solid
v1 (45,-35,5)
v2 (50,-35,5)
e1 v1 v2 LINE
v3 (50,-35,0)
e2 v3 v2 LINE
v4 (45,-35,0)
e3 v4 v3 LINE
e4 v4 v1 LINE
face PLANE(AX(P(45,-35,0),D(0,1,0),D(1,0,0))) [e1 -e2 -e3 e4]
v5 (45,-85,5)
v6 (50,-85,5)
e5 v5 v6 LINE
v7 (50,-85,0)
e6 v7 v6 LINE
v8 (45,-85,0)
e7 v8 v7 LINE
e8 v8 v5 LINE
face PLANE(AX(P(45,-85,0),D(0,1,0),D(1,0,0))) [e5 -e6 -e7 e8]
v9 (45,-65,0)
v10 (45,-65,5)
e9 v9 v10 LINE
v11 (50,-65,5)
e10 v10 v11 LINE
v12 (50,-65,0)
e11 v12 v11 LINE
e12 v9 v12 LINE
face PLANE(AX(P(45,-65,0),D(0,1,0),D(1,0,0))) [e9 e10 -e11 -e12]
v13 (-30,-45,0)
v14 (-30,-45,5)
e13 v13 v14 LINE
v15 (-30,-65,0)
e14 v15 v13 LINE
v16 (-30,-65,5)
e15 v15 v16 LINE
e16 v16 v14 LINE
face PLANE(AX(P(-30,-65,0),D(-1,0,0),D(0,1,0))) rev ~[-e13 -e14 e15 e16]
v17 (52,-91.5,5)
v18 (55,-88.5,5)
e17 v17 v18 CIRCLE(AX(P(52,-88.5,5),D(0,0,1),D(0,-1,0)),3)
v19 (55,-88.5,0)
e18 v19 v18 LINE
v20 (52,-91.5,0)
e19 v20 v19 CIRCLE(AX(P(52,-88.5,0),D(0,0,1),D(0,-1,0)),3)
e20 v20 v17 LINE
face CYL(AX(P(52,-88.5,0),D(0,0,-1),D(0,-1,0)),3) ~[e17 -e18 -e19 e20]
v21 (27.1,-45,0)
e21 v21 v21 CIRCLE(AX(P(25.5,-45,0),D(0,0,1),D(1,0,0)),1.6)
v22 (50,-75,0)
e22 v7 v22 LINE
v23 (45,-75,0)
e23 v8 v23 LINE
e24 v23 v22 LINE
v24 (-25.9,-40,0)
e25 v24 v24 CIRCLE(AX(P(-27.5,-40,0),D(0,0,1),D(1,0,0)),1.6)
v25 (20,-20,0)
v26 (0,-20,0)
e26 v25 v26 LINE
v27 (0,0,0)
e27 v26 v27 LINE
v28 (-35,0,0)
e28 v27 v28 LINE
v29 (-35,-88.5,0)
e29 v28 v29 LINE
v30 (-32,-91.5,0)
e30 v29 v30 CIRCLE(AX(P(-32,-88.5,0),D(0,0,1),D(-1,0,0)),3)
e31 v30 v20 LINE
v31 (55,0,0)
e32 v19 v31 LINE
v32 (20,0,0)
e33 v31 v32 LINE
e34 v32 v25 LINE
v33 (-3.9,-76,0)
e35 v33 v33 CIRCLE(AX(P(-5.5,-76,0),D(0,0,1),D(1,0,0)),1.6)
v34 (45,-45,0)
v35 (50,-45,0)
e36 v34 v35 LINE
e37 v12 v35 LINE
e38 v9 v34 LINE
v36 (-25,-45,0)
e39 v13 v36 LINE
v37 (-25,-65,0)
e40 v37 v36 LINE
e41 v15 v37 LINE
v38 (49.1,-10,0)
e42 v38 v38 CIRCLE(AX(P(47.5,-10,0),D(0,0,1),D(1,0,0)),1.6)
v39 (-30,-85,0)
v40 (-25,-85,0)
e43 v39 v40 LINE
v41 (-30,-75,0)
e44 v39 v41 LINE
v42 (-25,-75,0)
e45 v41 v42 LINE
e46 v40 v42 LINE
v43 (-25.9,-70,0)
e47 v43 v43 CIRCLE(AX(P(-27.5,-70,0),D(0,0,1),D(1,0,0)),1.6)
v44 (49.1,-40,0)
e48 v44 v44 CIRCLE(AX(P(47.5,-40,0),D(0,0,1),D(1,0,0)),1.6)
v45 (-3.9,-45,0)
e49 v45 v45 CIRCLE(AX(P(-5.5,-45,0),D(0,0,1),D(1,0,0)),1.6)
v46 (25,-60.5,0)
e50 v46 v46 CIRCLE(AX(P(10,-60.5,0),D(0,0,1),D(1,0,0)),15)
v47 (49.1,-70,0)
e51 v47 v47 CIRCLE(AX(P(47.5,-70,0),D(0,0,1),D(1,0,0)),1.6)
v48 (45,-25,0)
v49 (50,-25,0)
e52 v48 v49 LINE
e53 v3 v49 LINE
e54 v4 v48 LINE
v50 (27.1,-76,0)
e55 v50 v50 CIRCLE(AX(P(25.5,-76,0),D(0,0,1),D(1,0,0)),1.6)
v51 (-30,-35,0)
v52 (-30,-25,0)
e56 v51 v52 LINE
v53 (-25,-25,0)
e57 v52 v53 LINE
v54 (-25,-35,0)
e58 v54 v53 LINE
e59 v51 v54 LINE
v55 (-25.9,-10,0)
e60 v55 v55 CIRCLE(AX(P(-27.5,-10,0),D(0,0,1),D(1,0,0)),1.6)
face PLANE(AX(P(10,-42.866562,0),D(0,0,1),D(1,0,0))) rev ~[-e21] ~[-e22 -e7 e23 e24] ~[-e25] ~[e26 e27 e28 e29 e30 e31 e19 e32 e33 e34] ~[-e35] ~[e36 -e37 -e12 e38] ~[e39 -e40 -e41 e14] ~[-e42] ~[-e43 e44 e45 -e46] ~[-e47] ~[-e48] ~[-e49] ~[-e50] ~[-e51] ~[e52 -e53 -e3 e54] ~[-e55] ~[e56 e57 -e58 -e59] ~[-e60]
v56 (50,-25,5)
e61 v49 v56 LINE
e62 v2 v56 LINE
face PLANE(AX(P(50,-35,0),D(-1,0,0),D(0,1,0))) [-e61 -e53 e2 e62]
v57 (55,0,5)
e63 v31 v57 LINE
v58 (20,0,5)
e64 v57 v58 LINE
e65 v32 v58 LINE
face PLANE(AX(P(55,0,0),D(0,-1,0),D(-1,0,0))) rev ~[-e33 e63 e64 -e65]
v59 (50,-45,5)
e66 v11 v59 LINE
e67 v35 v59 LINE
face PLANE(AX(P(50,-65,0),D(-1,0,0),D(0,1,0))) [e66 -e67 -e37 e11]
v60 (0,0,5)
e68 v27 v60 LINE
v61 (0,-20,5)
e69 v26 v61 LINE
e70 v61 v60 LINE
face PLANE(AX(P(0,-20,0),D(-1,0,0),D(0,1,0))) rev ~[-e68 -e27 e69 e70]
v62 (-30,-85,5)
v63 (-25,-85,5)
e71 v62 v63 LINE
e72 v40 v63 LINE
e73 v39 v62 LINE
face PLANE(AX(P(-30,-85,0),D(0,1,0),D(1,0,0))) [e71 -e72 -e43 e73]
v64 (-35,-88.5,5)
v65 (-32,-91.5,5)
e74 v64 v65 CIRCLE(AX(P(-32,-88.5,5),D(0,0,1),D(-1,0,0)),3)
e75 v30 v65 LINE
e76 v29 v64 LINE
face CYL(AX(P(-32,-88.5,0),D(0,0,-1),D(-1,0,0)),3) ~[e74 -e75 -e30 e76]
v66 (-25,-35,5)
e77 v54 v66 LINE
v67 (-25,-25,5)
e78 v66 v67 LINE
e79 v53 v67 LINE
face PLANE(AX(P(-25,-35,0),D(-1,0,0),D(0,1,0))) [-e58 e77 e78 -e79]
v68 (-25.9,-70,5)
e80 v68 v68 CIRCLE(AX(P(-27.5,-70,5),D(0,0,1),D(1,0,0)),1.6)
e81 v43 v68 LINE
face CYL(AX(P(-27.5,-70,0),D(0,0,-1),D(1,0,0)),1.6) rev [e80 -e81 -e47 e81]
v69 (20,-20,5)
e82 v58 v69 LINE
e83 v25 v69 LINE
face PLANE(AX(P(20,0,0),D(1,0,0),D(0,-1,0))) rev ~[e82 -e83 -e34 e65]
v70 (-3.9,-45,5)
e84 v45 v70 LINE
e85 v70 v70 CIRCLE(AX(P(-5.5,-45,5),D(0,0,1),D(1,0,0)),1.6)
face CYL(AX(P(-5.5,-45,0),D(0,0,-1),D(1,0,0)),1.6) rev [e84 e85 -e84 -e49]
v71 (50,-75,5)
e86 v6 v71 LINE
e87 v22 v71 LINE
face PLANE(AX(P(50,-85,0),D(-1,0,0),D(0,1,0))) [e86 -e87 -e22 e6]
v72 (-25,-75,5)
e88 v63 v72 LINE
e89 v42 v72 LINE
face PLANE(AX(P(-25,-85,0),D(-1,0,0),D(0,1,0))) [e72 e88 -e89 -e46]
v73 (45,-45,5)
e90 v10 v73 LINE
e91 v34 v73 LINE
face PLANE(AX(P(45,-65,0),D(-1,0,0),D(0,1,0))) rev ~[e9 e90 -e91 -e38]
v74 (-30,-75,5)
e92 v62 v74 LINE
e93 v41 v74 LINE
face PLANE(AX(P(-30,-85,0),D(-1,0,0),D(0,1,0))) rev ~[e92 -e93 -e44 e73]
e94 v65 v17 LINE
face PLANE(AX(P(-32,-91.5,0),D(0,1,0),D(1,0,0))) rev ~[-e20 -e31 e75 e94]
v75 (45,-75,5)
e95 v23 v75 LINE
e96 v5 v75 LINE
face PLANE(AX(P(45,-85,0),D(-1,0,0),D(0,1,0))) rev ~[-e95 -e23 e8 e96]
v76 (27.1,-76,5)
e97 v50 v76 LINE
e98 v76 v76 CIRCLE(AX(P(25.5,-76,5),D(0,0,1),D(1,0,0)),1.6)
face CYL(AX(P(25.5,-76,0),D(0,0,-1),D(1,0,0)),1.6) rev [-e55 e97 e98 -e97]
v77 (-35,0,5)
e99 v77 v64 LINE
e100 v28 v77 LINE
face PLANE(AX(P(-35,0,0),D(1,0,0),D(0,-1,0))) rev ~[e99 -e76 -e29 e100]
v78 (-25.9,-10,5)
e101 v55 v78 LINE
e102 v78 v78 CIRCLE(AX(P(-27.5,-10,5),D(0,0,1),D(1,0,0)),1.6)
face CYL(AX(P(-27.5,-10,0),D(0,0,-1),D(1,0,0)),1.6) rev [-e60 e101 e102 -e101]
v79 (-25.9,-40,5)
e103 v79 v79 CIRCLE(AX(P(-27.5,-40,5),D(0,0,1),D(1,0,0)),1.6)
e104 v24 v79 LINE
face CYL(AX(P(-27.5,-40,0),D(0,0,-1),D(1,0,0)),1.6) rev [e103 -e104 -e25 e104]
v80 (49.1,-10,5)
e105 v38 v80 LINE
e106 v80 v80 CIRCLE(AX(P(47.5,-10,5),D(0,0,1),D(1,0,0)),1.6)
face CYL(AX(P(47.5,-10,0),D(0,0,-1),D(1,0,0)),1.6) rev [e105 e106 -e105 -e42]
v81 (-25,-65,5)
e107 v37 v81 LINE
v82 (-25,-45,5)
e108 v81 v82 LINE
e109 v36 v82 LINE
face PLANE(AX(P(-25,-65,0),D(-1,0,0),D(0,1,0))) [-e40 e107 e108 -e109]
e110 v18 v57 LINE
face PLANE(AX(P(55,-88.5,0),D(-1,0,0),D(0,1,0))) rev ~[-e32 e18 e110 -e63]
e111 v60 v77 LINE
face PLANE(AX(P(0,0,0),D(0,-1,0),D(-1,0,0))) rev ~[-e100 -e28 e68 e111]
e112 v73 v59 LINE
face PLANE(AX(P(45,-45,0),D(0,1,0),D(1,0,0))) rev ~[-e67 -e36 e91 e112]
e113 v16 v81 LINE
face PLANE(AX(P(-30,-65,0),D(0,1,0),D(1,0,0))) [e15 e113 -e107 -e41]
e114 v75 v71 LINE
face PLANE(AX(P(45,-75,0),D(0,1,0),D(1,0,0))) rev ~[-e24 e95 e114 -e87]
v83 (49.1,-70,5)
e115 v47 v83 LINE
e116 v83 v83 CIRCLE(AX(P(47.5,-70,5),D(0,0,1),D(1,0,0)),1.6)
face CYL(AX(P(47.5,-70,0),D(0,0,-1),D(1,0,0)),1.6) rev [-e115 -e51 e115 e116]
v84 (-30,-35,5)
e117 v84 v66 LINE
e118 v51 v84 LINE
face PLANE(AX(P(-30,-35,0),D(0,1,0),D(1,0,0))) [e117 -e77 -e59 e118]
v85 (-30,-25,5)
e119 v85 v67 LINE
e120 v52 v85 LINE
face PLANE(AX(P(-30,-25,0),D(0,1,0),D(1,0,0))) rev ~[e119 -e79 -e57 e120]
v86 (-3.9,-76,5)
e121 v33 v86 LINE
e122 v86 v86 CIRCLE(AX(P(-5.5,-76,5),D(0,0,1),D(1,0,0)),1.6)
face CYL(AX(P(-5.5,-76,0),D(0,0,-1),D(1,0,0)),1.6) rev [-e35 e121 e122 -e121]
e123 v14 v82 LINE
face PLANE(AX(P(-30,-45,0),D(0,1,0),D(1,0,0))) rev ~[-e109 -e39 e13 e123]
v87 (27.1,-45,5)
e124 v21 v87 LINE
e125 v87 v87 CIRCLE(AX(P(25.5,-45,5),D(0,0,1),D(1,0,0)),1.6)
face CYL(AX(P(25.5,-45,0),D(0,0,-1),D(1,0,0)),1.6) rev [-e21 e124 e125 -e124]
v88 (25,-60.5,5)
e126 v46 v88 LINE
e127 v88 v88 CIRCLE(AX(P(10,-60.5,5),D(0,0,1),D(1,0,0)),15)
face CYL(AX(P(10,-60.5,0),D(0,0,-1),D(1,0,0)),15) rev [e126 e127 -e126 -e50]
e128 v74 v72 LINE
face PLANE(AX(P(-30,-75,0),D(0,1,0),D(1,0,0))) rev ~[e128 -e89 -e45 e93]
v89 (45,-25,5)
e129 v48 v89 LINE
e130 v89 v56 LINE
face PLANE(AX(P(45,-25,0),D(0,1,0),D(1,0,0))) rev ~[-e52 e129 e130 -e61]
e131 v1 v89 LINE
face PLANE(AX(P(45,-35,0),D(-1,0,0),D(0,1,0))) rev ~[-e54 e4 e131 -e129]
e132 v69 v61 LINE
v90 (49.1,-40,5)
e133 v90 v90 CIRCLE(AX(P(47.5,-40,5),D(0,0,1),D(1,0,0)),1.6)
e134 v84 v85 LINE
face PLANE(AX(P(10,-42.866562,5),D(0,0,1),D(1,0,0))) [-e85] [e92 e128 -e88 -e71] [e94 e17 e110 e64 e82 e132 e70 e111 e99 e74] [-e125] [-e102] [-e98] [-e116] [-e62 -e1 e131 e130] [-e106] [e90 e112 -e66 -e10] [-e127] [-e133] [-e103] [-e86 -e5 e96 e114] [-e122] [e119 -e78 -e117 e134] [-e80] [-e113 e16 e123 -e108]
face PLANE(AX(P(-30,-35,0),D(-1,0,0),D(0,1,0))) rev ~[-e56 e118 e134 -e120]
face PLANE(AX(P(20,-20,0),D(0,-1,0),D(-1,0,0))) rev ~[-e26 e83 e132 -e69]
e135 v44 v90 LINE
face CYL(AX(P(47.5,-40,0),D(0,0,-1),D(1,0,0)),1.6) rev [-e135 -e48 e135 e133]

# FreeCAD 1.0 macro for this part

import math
import FreeCAD as App
import Part
import Sketcher

V = App.Vector


def add_polygon(sketch, points):
    """Adds a closed chain of lines whose ends are joined by coincident constraints."""
    first, n = sketch.GeometryCount, len(points)
    for a, b in zip(points, points[1:] + points[:1]):
        sketch.addGeometry(Part.LineSegment(App.Vector(*a, 0), App.Vector(*b, 0)), False)
    for i in range(n):
        sketch.addConstraint(Sketcher.Constraint("Coincident", first + i, 2, first + (i + 1) % n, 1))

doc = App.newDocument("Part")
body = doc.addObject("PartDesign::Body", "Body")

sketch1 = doc.addObject("Sketcher::SketchObject", "Sketch")
body.addObject(sketch1)
sketch1.AttachmentSupport = (doc.XY_Plane, [""])
sketch1.MapMode = "FlatFace"
sketch1.addGeometry(Part.LineSegment(V(0, -20, 0), V(0, 0, 0)), False)
sketch1.addGeometry(Part.LineSegment(V(0, 0, 0), V(-35, 0, 0)), False)
sketch1.addGeometry(Part.LineSegment(V(-35, 0, 0), V(-35, -88.5, 0)), False)
sketch1.addGeometry(Part.ArcOfCircle(Part.Circle(V(-32, -88.5, 0), V(0, 0, 1), 3), math.radians(180), math.radians(270)), False)
sketch1.addGeometry(Part.LineSegment(V(-32, -91.5, 0), V(52, -91.5, 0)), False)
sketch1.addGeometry(Part.ArcOfCircle(Part.Circle(V(52, -88.5, 0), V(0, 0, 1), 3), math.radians(-90), math.radians(0)), False)
sketch1.addGeometry(Part.LineSegment(V(55, -88.5, 0), V(55, 0, 0)), False)
sketch1.addGeometry(Part.LineSegment(V(55, 0, 0), V(20, 0, 0)), False)
sketch1.addGeometry(Part.LineSegment(V(20, 0, 0), V(20, -20, 0)), False)
sketch1.addGeometry(Part.LineSegment(V(20, -20, 0), V(0, -20, 0)), False)
add_polygon(sketch1, [(-25, -85), (-30, -85), (-30, -75), (-25, -75)])
sketch1.addGeometry(Part.Circle(V(-27.5, -70, 0), V(0, 0, 1), 1.6), False)
sketch1.addGeometry(Part.Circle(V(-5.5, -76, 0), V(0, 0, 1), 1.6), False)
add_polygon(sketch1, [(-25, -65), (-30, -65), (-30, -45), (-25, -45)])
sketch1.addGeometry(Part.Circle(V(25.5, -76, 0), V(0, 0, 1), 1.6), False)
add_polygon(sketch1, [(50, -85), (45, -85), (45, -75), (50, -75)])
sketch1.addGeometry(Part.Circle(V(47.5, -70, 0), V(0, 0, 1), 1.6), False)
sketch1.addGeometry(Part.Circle(V(10, -60.5, 0), V(0, 0, 1), 15), False)
add_polygon(sketch1, [(50, -65), (45, -65), (45, -45), (50, -45)])
sketch1.addGeometry(Part.Circle(V(-27.5, -40, 0), V(0, 0, 1), 1.6), False)
add_polygon(sketch1, [(-25, -35), (-30, -35), (-30, -25), (-25, -25)])
sketch1.addGeometry(Part.Circle(V(-5.5, -45, 0), V(0, 0, 1), 1.6), False)
sketch1.addGeometry(Part.Circle(V(-27.5, -10, 0), V(0, 0, 1), 1.6), False)
sketch1.addGeometry(Part.Circle(V(25.5, -45, 0), V(0, 0, 1), 1.6), False)
sketch1.addGeometry(Part.Circle(V(47.5, -40, 0), V(0, 0, 1), 1.6), False)
add_polygon(sketch1, [(50, -35), (45, -35), (45, -25), (50, -25)])
sketch1.addGeometry(Part.Circle(V(47.5, -10, 0), V(0, 0, 1), 1.6), False)
sketch1.addConstraint([
    Sketcher.Constraint("Coincident", 0, 2, 1, 1),
    Sketcher.Constraint("Coincident", 1, 2, 2, 1),
    Sketcher.Constraint("Tangent", 2, 2, 3, 1),
    Sketcher.Constraint("Tangent", 3, 2, 4, 1),
    Sketcher.Constraint("Tangent", 4, 2, 5, 1),
    Sketcher.Constraint("Tangent", 5, 2, 6, 1),
    Sketcher.Constraint("Coincident", 6, 2, 7, 1),
    Sketcher.Constraint("Coincident", 7, 2, 8, 1),
    Sketcher.Constraint("Coincident", 8, 2, 9, 1),
    Sketcher.Constraint("Coincident", 9, 2, 0, 1),
    Sketcher.Constraint("Vertical", 0),
    Sketcher.Constraint("Horizontal", 1),
    Sketcher.Constraint("Vertical", 2),
    Sketcher.Constraint("Horizontal", 4),
    Sketcher.Constraint("Vertical", 6),
    Sketcher.Constraint("Horizontal", 7),
    Sketcher.Constraint("Vertical", 8),
    Sketcher.Constraint("Horizontal", 9),
    Sketcher.Constraint("Horizontal", 10),
    Sketcher.Constraint("Vertical", 11),
    Sketcher.Constraint("Horizontal", 12),
    Sketcher.Constraint("Vertical", 13),
    Sketcher.Constraint("Horizontal", 16),
    Sketcher.Constraint("Vertical", 17),
    Sketcher.Constraint("Horizontal", 18),
    Sketcher.Constraint("Vertical", 19),
    Sketcher.Constraint("Horizontal", 21),
    Sketcher.Constraint("Vertical", 22),
    Sketcher.Constraint("Horizontal", 23),
    Sketcher.Constraint("Vertical", 24),
    Sketcher.Constraint("Horizontal", 27),
    Sketcher.Constraint("Vertical", 28),
    Sketcher.Constraint("Horizontal", 29),
    Sketcher.Constraint("Vertical", 30),
    Sketcher.Constraint("Horizontal", 32),
    Sketcher.Constraint("Vertical", 33),
    Sketcher.Constraint("Horizontal", 34),
    Sketcher.Constraint("Vertical", 35),
    Sketcher.Constraint("Horizontal", 40),
    Sketcher.Constraint("Vertical", 41),
    Sketcher.Constraint("Horizontal", 42),
    Sketcher.Constraint("Vertical", 43),
    Sketcher.Constraint("Coincident", 0, 2, -1, 1),
    Sketcher.Constraint("Equal", 3, 5),
    Sketcher.Constraint("Equal", 14, 15),
    Sketcher.Constraint("Equal", 15, 20),
    Sketcher.Constraint("Equal", 20, 25),
    Sketcher.Constraint("Equal", 25, 31),
    Sketcher.Constraint("Equal", 31, 36),
    Sketcher.Constraint("Equal", 36, 37),
    Sketcher.Constraint("Equal", 37, 38),
    Sketcher.Constraint("Equal", 38, 39),
    Sketcher.Constraint("Equal", 39, 44),
    Sketcher.Constraint("PointOnObject", 6, 2, -1),
    Sketcher.Constraint("Horizontal", 15, 3, 20, 3),
    Sketcher.Constraint("Horizontal", 14, 3, 25, 3),
    Sketcher.Constraint("Horizontal", 36, 3, 38, 3),
    Sketcher.Constraint("Horizontal", 31, 3, 39, 3),
    Sketcher.Constraint("Horizontal", 37, 3, 44, 3),
    Sketcher.Constraint("Horizontal", 38, 3, 17, 2),
    Sketcher.Constraint("Horizontal", 13, 2, 21, 2),
    Sketcher.Constraint("Horizontal", 12, 2, 22, 2),
    Sketcher.Constraint("Horizontal", 19, 2, 27, 2),
    Sketcher.Constraint("Horizontal", 18, 2, 28, 2),
    Sketcher.Constraint("Horizontal", 35, 2, 40, 2),
    Sketcher.Constraint("Horizontal", 34, 2, 41, 2),
    Sketcher.Constraint("Vertical", 14, 3, 31, 3),
    Sketcher.Constraint("Vertical", 15, 3, 36, 3),
    Sketcher.Constraint("Vertical", 31, 3, 37, 3),
    Sketcher.Constraint("Vertical", 20, 3, 38, 3),
    Sketcher.Constraint("Vertical", 25, 3, 39, 3),
    Sketcher.Constraint("Vertical", 39, 3, 44, 3),
    Sketcher.Constraint("Vertical", 11, 2, 16, 2),
    Sketcher.Constraint("Vertical", 13, 2, 18, 2),
    Sketcher.Constraint("Vertical", 22, 2, 27, 2),
    Sketcher.Constraint("Vertical", 24, 2, 29, 2),
    Sketcher.Constraint("Vertical", 17, 2, 32, 2),
    Sketcher.Constraint("Vertical", 19, 2, 34, 2),
    Sketcher.Constraint("Vertical", 28, 2, 40, 2),
    Sketcher.Constraint("Vertical", 30, 2, 42, 2),
    Sketcher.Constraint("Equal", 1, 7),
    Sketcher.Constraint("Equal", 18, 21),
    Sketcher.Constraint("Equal", 9, 0),
    Sketcher.Constraint("Equal", 8, 17),
    Sketcher.Constraint("Equal", 24, 33),
    Sketcher.Constraint("Diameter", 26, 30.0),
    Sketcher.Constraint("Radius", 3, 3.0),
    Sketcher.Constraint("Diameter", 14, 3.2),
    Sketcher.Constraint("DistanceX", 1, 2, 1, 1, 35.0),
    Sketcher.Constraint("DistanceX", 4, 1, 4, 2, 84.0),
    Sketcher.Constraint("DistanceX", 10, 2, 10, 1, 5.0),
    Sketcher.Constraint("DistanceY", 11, 1, 11, 2, 10.0),
    Sketcher.Constraint("DistanceY", 2, 2, 2, 1, 88.5),
    Sketcher.Constraint("DistanceY", 14, 3, -1, 1, 70.0),
    Sketcher.Constraint("DistanceY", 15, 3, -1, 1, 76.0),
    Sketcher.Constraint("DistanceX", -1, 1, 26, 3, 10.0),
    Sketcher.Constraint("DistanceY", 31, 3, -1, 1, 40.0),
    Sketcher.Constraint("DistanceY", 36, 3, -1, 1, 45.0),
    Sketcher.Constraint("DistanceY", 37, 3, -1, 1, 10.0),
    Sketcher.Constraint("DistanceX", 10, 2, -1, 1, 30.0),
    Sketcher.Constraint("DistanceY", 10, 2, -1, 1, 85.0),
    Sketcher.Constraint("DistanceX", -1, 1, 21, 2, 45.0),
    Sketcher.Constraint("DistanceY", 32, 2, -1, 1, 35.0),
    Sketcher.Constraint("DistanceX", 14, 3, 15, 3, 22.0),
    Sketcher.Constraint("DistanceX", 15, 3, 20, 3, 31.0),
    Sketcher.Constraint("DistanceX", 20, 3, 25, 3, 22.0),
    Sketcher.Constraint("DistanceY", 3, 3, 26, 3, 28.0),
    Sketcher.Constraint("DistanceX", 14, 3, -1, 1, 27.5),
])
pad1 = doc.addObject("PartDesign::Pad", "Pad")
body.addObject(pad1)
pad1.Profile = sketch1
pad1.Length = 5

doc.recompute()
